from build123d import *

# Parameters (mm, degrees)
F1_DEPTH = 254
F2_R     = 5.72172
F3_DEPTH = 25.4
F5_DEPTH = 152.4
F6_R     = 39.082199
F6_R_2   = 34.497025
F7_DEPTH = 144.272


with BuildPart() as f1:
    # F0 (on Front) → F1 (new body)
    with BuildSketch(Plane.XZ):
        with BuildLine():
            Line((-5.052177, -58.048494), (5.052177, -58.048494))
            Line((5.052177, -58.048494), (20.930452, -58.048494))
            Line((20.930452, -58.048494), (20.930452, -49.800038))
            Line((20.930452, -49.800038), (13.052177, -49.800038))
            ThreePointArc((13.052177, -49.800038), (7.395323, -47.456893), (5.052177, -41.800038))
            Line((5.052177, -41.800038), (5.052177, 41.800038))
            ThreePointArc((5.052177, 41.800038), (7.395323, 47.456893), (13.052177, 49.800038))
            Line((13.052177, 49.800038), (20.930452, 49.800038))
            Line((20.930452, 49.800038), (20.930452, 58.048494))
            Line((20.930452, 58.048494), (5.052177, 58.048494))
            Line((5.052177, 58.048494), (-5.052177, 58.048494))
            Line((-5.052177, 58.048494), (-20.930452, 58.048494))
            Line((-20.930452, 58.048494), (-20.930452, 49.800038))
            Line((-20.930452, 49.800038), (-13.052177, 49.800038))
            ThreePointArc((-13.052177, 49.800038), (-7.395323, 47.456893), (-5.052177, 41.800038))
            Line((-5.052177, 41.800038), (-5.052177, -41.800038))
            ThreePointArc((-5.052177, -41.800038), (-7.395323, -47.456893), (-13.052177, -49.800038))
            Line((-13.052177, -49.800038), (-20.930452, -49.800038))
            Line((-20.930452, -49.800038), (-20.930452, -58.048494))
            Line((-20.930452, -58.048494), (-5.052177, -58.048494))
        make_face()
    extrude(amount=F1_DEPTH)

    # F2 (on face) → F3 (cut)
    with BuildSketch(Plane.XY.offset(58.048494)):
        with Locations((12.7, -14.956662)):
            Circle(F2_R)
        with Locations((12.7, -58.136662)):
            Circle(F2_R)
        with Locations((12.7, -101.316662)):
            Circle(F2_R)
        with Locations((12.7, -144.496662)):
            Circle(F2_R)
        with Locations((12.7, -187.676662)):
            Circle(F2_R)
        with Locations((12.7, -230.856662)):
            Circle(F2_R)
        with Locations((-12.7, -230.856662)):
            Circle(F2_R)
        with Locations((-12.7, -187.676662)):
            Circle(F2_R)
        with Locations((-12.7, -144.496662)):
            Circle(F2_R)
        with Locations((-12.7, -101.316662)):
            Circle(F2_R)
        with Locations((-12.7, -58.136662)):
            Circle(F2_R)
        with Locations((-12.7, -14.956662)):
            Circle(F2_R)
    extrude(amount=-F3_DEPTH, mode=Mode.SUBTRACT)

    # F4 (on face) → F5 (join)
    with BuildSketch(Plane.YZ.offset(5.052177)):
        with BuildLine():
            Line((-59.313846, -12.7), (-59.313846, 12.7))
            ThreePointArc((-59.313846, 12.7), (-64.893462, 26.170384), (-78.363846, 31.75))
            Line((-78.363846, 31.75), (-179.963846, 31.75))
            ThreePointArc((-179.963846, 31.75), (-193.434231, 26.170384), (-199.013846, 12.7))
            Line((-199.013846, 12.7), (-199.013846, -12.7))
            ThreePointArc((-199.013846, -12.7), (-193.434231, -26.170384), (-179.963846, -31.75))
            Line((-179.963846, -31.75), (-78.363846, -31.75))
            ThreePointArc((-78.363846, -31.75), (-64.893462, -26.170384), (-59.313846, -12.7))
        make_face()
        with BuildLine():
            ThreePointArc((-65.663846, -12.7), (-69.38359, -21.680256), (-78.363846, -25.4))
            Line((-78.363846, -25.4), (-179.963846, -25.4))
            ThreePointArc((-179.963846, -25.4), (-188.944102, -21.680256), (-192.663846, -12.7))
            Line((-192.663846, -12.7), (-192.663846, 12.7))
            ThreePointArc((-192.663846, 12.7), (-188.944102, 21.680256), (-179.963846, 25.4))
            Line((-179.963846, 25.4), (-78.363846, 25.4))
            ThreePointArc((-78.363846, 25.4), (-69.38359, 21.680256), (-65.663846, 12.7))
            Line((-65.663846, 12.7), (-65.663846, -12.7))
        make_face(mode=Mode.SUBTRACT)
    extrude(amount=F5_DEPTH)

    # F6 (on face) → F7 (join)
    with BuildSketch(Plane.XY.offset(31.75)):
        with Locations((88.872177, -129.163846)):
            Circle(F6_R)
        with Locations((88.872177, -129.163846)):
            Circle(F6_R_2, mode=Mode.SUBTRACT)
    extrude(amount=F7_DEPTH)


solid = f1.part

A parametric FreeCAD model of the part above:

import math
import FreeCAD as App
import Part
import Sketcher
from FreeCAD import Vector
Q = App.Units.Quantity

doc = App.newDocument("Part")
body = doc.addObject("PartDesign::Body", "Body")

# Sketch on XZ plane
sketch1 = doc.addObject("Sketcher::SketchObject", "Sketch")
body.addObject(sketch1)
sketch1.AttachmentSupport = (doc.XZ_Plane, [""])
sketch1.MapMode = "FlatFace"
sketch1.addGeometry([
    Part.LineSegment(Vector(20.930452, -58.048494, 0), Vector(20.930452, -49.800038, 0)),  # 0
    Part.LineSegment(Vector(20.930452, -49.800038, 0), Vector(13.052177, -49.800038, 0)),  # 1
    Part.ArcOfCircle(Part.Circle(Vector(13.052176, -41.800039, 0), Vector(0, 0, 1), 7.999999), math.radians(179.999994), math.radians(270.000006)),  # 2
    Part.LineSegment(Vector(5.052177, -41.800038, 0), Vector(5.052177, 41.800038, 0)),  # 3
    Part.ArcOfCircle(Part.Circle(Vector(13.052176, 41.800039, 0), Vector(0, 0, 1), 7.999999), math.radians(89.999994), math.radians(180.000006)),  # 4
    Part.LineSegment(Vector(13.052177, 49.800038, 0), Vector(20.930452, 49.800038, 0)),  # 5
    Part.LineSegment(Vector(20.930452, 49.800038, 0), Vector(20.930452, 58.048494, 0)),  # 6
    Part.LineSegment(Vector(20.930452, 58.048494, 0), Vector(-20.930452, 58.048494, 0)),  # 7
    Part.LineSegment(Vector(-20.930452, 58.048494, 0), Vector(-20.930452, 49.800038, 0)),  # 8
    Part.LineSegment(Vector(-20.930452, 49.800038, 0), Vector(-13.052177, 49.800038, 0)),  # 9
    Part.ArcOfCircle(Part.Circle(Vector(-13.052176, 41.800039, 0), Vector(0, 0, 1), 7.999999), math.radians(-0.000006), math.radians(90.000006)),  # 10
    Part.LineSegment(Vector(-5.052177, 41.800038, 0), Vector(-5.052177, -41.800038, 0)),  # 11
    Part.ArcOfCircle(Part.Circle(Vector(-13.052176, -41.800039, 0), Vector(0, 0, 1), 7.999999), math.radians(-90.000006), math.radians(0.000006)),  # 12
    Part.LineSegment(Vector(-13.052177, -49.800038, 0), Vector(-20.930452, -49.800038, 0)),  # 13
    Part.LineSegment(Vector(-20.930452, -49.800038, 0), Vector(-20.930452, -58.048494, 0)),  # 14
    Part.LineSegment(Vector(-20.930452, -58.048494, 0), Vector(20.930452, -58.048494, 0)),  # 15
], False)
sketch1.addConstraint([
    Sketcher.Constraint("Coincident", 0, 2, 1, 1),
    Sketcher.Constraint("Tangent", 1, 2, 2, 2),
    Sketcher.Constraint("Tangent", 2, 1, 3, 1),
    Sketcher.Constraint("Tangent", 3, 2, 4, 2),
    Sketcher.Constraint("Tangent", 4, 1, 5, 1),
    Sketcher.Constraint("Coincident", 5, 2, 6, 1),
    Sketcher.Constraint("Coincident", 6, 2, 7, 1),
    Sketcher.Constraint("Coincident", 7, 2, 8, 1),
    Sketcher.Constraint("Coincident", 8, 2, 9, 1),
    Sketcher.Constraint("Tangent", 9, 2, 10, 2),
    Sketcher.Constraint("Tangent", 10, 1, 11, 1),
    Sketcher.Constraint("Tangent", 11, 2, 12, 2),
    Sketcher.Constraint("Tangent", 12, 1, 13, 1),
    Sketcher.Constraint("Coincident", 13, 2, 14, 1),
    Sketcher.Constraint("Coincident", 14, 2, 15, 1),
    Sketcher.Constraint("Coincident", 15, 2, 0, 1),
    Sketcher.Constraint("Vertical", 0),
    Sketcher.Constraint("Horizontal", 1),
    Sketcher.Constraint("Vertical", 3),
    Sketcher.Constraint("Horizontal", 5),
    Sketcher.Constraint("Vertical", 6),
    Sketcher.Constraint("Horizontal", 7),
    Sketcher.Constraint("Vertical", 8),
    Sketcher.Constraint("Horizontal", 9),
    Sketcher.Constraint("Vertical", 11),
    Sketcher.Constraint("Horizontal", 13),
    Sketcher.Constraint("Vertical", 14),
    Sketcher.Constraint("Horizontal", 15),
    Sketcher.Constraint("Equal", 2, 4),
    Sketcher.Constraint("Equal", 4, 10),
    Sketcher.Constraint("Equal", 10, 12),
    Sketcher.Constraint("Symmetric", 2, 3, 10, 3, -1, 1),
    Sketcher.Constraint("Symmetric", 5, 2, 13, 2, -1, 1),
    Sketcher.Constraint("Symmetric", 7, 2, 15, 2, -1, 1),
    Sketcher.Constraint("Symmetric", 5, 2, 8, 2, -2),
    Sketcher.Constraint("Radius", 2, 7.999999),
    Sketcher.Constraint("DistanceX", 1, 2, 1, 1, 7.878275),
    Sketcher.Constraint("DistanceX", 7, 2, 7, 1, 41.860904),
    Sketcher.Constraint("DistanceY", 0, 1, 0, 2, 8.248456),
    Sketcher.Constraint("DistanceY", 3, 1, 3, 2, 83.600076),
])
pad1 = doc.addObject("PartDesign::Pad", "Pad")
body.addObject(pad1)
pad1.Profile = sketch1
pad1.Length = Q("10 in")

# Sketch on XY plane
sketch2 = doc.addObject("Sketcher::SketchObject", "Sketch001")
body.addObject(sketch2)
sketch2.AttachmentSupport = (doc.XY_Plane, [""])
sketch2.MapMode = "FlatFace"
sketch2.AttachmentOffset = App.Placement(Vector(0, 0, 58.048494), App.Rotation())
sketch2.addGeometry([
    Part.Circle(Vector(12.7, -14.956662, 0), Vector(0, 0, 1), 5.72172),  # 0
    Part.Circle(Vector(12.7, -58.136662, 0), Vector(0, 0, 1), 5.72172),  # 1
    Part.Circle(Vector(12.7, -101.316662, 0), Vector(0, 0, 1), 5.72172),  # 2
    Part.Circle(Vector(12.7, -144.496662, 0), Vector(0, 0, 1), 5.72172),  # 3
    Part.Circle(Vector(12.7, -187.676662, 0), Vector(0, 0, 1), 5.72172),  # 4
    Part.Circle(Vector(12.7, -230.856662, 0), Vector(0, 0, 1), 5.72172),  # 5
    Part.Circle(Vector(-12.7, -230.856662, 0), Vector(0, 0, 1), 5.72172),  # 6
    Part.Circle(Vector(-12.7, -187.676662, 0), Vector(0, 0, 1), 5.72172),  # 7
    Part.Circle(Vector(-12.7, -144.496662, 0), Vector(0, 0, 1), 5.72172),  # 8
    Part.Circle(Vector(-12.7, -101.316662, 0), Vector(0, 0, 1), 5.72172),  # 9
    Part.Circle(Vector(-12.7, -58.136662, 0), Vector(0, 0, 1), 5.72172),  # 10
    Part.Circle(Vector(-12.7, -14.956662, 0), Vector(0, 0, 1), 5.72172),  # 11
], False)
sketch2.addConstraint([
    Sketcher.Constraint("Equal", 0, 1),
    Sketcher.Constraint("Equal", 1, 2),
    Sketcher.Constraint("Equal", 2, 3),
    Sketcher.Constraint("Equal", 3, 4),
    Sketcher.Constraint("Equal", 4, 5),
    Sketcher.Constraint("Equal", 5, 6),
    Sketcher.Constraint("Equal", 6, 7),
    Sketcher.Constraint("Equal", 7, 8),
    Sketcher.Constraint("Equal", 8, 9),
    Sketcher.Constraint("Equal", 9, 10),
    Sketcher.Constraint("Equal", 10, 11),
    Sketcher.Constraint("Symmetric", 5, 3, 6, 3, -2),
    Sketcher.Constraint("Symmetric", 4, 3, 7, 3, -2),
    Sketcher.Constraint("Symmetric", 3, 3, 8, 3, -2),
    Sketcher.Constraint("Symmetric", 2, 3, 9, 3, -2),
    Sketcher.Constraint("Symmetric", 1, 3, 10, 3, -2),
    Sketcher.Constraint("Symmetric", 0, 3, 11, 3, -2),
    Sketcher.Constraint("Vertical", 0, 3, 1, 3),
    Sketcher.Constraint("Vertical", 1, 3, 2, 3),
    Sketcher.Constraint("Vertical", 2, 3, 3, 3),
    Sketcher.Constraint("Vertical", 3, 3, 4, 3),
    Sketcher.Constraint("Vertical", 4, 3, 5, 3),
    Sketcher.Constraint("DistanceX", 6, 3, 5, 3, Q("1 in")),
    Sketcher.Constraint("DistanceY", 1, 3, 0, 3, Q("1.7 in")),
    Sketcher.Constraint("DistanceY", 2, 3, 1, 3, Q("1.7 in")),
    Sketcher.Constraint("DistanceY", 3, 3, 2, 3, Q("1.7 in")),
    Sketcher.Constraint("DistanceY", 4, 3, 3, 3, Q("1.7 in")),
    Sketcher.Constraint("DistanceY", 5, 3, 4, 3, Q("1.7 in")),
    Sketcher.Constraint("Diameter", 0, 11.44344),
    Sketcher.Constraint("DistanceY", 2, 3, -1, 1, 101.316662),
])
pocket1 = doc.addObject("PartDesign::Pocket", "Pocket")
body.addObject(pocket1)
pocket1.Profile = sketch2
pocket1.Length = Q("1 in")

# Sketch on YZ plane
sketch3 = doc.addObject("Sketcher::SketchObject", "Sketch002")
body.addObject(sketch3)
sketch3.AttachmentSupport = (doc.YZ_Plane, [""])
sketch3.MapMode = "FlatFace"
sketch3.AttachmentOffset = App.Placement(Vector(0, 0, 5.052177), App.Rotation())
sketch3.addGeometry([
    Part.LineSegment(Vector(-59.313846, -12.7, 0), Vector(-59.313846, 12.7, 0)),  # 0
    Part.ArcOfCircle(Part.Circle(Vector(-78.363847, 12.699999, 0), Vector(0, 0, 1), 19.050001), math.radians(0.000002), math.radians(89.999998)),  # 1
    Part.LineSegment(Vector(-78.363846, 31.75, 0), Vector(-179.963846, 31.75, 0)),  # 2
    Part.ArcOfCircle(Part.Circle(Vector(-179.963847, 12.700001, 0), Vector(0, 0, 1), 19.049999), math.radians(89.999997), math.radians(180.000003)),  # 3
    Part.LineSegment(Vector(-199.013846, 12.7, 0), Vector(-199.013846, -12.7, 0)),  # 4
    Part.ArcOfCircle(Part.Circle(Vector(-179.963847, -12.700001, 0), Vector(0, 0, 1), 19.049999), math.radians(179.999997), math.radians(270.000003)),  # 5
    Part.LineSegment(Vector(-179.963846, -31.75, 0), Vector(-78.363846, -31.75, 0)),  # 6
    Part.ArcOfCircle(Part.Circle(Vector(-78.363847, -12.699999, 0), Vector(0, 0, 1), 19.050001), math.radians(-89.999998), math.radians(-0.000002)),  # 7
    Part.LineSegment(Vector(-65.663846, 12.7, 0), Vector(-65.663846, -12.7, 0)),  # 8
    Part.ArcOfCircle(Part.Circle(Vector(-78.363846, -12.7, 0), Vector(0, 0, 1), 12.7), math.radians(-89.999998), math.radians(-0.000002)),  # 9
    Part.LineSegment(Vector(-78.363846, -25.4, 0), Vector(-179.963846, -25.4, 0)),  # 10
    Part.ArcOfCircle(Part.Circle(Vector(-179.963846, -12.7, 0), Vector(0, 0, 1), 12.7), math.radians(-179.999998), math.radians(-90.000002)),  # 11
    Part.LineSegment(Vector(-192.663846, -12.7, 0), Vector(-192.663846, 12.7, 0)),  # 12
    Part.ArcOfCircle(Part.Circle(Vector(-179.963846, 12.7, 0), Vector(0, 0, 1), 12.7), math.radians(90.000002), math.radians(179.999998)),  # 13
    Part.LineSegment(Vector(-179.963846, 25.4, 0), Vector(-78.363846, 25.4, 0)),  # 14
    Part.ArcOfCircle(Part.Circle(Vector(-78.363846, 12.7, 0), Vector(0, 0, 1), 12.7), math.radians(0.000002), math.radians(89.999998)),  # 15
], False)
sketch3.addConstraint([
    Sketcher.Constraint("Tangent", 0, 2, 1, 1),
    Sketcher.Constraint("Tangent", 1, 2, 2, 1),
    Sketcher.Constraint("Tangent", 2, 2, 3, 1),
    Sketcher.Constraint("Tangent", 3, 2, 4, 1),
    Sketcher.Constraint("Tangent", 4, 2, 5, 1),
    Sketcher.Constraint("Tangent", 5, 2, 6, 1),
    Sketcher.Constraint("Tangent", 6, 2, 7, 1),
    Sketcher.Constraint("Tangent", 7, 2, 0, 1),
    Sketcher.Constraint("Tangent", 8, 2, 9, 2),
    Sketcher.Constraint("Tangent", 9, 1, 10, 1),
    Sketcher.Constraint("Tangent", 10, 2, 11, 2),
    Sketcher.Constraint("Tangent", 11, 1, 12, 1),
    Sketcher.Constraint("Tangent", 12, 2, 13, 2),
    Sketcher.Constraint("Tangent", 13, 1, 14, 1),
    Sketcher.Constraint("Tangent", 14, 2, 15, 2),
    Sketcher.Constraint("Tangent", 15, 1, 8, 1),
    Sketcher.Constraint("Vertical", 0),
    Sketcher.Constraint("Horizontal", 2),
    Sketcher.Constraint("Vertical", 4),
    Sketcher.Constraint("Horizontal", 6),
    Sketcher.Constraint("Vertical", 8),
    Sketcher.Constraint("Horizontal", 10),
    Sketcher.Constraint("Vertical", 12),
    Sketcher.Constraint("Horizontal", 14),
    Sketcher.Constraint("Coincident", 9, 3, 7, 3),
    Sketcher.Constraint("Coincident", 11, 3, 5, 3),
    Sketcher.Constraint("Coincident", 13, 3, 3, 3),
    Sketcher.Constraint("Equal", 1, 3),
    Sketcher.Constraint("Equal", 3, 5),
    Sketcher.Constraint("Equal", 5, 7),
    Sketcher.Constraint("Equal", 13, 15),
    Sketcher.Constraint("Radius", 9, Q("0.5 in")),
    Sketcher.Constraint("DistanceX", 2, 2, 2, 1, Q("4 in")),
    Sketcher.Constraint("DistanceY", 0, 1, 0, 2, Q("1 in")),
    Sketcher.Constraint("Radius", 1, Q("0.75 in")),
    Sketcher.Constraint("DistanceY", 9, 1, -1, 1, Q("1 in")),
    Sketcher.Constraint("DistanceX", 1, 3, -1, 1, 78.363847),
])
pad2 = doc.addObject("PartDesign::Pad", "Pad001")
body.addObject(pad2)
pad2.Profile = sketch3
pad2.Length = Q("6 in")

# Sketch on XY plane
sketch4 = doc.addObject("Sketcher::SketchObject", "Sketch003")
body.addObject(sketch4)
sketch4.AttachmentSupport = (doc.XY_Plane, [""])
sketch4.MapMode = "FlatFace"
sketch4.AttachmentOffset = App.Placement(Vector(0, 0, 1.25 * 25.4), App.Rotation())
sketch4.addGeometry([
    Part.Circle(Vector(88.872177, -129.163846, 0), Vector(0, 0, 1), 39.082199),
    Part.Circle(Vector(88.872177, -129.163846, 0), Vector(0, 0, 1), 34.497025),
], False)
sketch4.addConstraint([
    Sketcher.Constraint("Coincident", 1, 3, 0, 3),
    Sketcher.Constraint("Diameter", 0, 78.164398),
    Sketcher.Constraint("Diameter", 1, 68.99405),
    Sketcher.Constraint("DistanceX", -1, 1, 0, 3, 88.872177),
    Sketcher.Constraint("DistanceY", 0, 3, -1, 1, 129.163846),
])
pad3 = doc.addObject("PartDesign::Pad", "Pad002")
body.addObject(pad3)
pad3.Profile = sketch4
pad3.Length = Q("5.68 in")

doc.recompute()
